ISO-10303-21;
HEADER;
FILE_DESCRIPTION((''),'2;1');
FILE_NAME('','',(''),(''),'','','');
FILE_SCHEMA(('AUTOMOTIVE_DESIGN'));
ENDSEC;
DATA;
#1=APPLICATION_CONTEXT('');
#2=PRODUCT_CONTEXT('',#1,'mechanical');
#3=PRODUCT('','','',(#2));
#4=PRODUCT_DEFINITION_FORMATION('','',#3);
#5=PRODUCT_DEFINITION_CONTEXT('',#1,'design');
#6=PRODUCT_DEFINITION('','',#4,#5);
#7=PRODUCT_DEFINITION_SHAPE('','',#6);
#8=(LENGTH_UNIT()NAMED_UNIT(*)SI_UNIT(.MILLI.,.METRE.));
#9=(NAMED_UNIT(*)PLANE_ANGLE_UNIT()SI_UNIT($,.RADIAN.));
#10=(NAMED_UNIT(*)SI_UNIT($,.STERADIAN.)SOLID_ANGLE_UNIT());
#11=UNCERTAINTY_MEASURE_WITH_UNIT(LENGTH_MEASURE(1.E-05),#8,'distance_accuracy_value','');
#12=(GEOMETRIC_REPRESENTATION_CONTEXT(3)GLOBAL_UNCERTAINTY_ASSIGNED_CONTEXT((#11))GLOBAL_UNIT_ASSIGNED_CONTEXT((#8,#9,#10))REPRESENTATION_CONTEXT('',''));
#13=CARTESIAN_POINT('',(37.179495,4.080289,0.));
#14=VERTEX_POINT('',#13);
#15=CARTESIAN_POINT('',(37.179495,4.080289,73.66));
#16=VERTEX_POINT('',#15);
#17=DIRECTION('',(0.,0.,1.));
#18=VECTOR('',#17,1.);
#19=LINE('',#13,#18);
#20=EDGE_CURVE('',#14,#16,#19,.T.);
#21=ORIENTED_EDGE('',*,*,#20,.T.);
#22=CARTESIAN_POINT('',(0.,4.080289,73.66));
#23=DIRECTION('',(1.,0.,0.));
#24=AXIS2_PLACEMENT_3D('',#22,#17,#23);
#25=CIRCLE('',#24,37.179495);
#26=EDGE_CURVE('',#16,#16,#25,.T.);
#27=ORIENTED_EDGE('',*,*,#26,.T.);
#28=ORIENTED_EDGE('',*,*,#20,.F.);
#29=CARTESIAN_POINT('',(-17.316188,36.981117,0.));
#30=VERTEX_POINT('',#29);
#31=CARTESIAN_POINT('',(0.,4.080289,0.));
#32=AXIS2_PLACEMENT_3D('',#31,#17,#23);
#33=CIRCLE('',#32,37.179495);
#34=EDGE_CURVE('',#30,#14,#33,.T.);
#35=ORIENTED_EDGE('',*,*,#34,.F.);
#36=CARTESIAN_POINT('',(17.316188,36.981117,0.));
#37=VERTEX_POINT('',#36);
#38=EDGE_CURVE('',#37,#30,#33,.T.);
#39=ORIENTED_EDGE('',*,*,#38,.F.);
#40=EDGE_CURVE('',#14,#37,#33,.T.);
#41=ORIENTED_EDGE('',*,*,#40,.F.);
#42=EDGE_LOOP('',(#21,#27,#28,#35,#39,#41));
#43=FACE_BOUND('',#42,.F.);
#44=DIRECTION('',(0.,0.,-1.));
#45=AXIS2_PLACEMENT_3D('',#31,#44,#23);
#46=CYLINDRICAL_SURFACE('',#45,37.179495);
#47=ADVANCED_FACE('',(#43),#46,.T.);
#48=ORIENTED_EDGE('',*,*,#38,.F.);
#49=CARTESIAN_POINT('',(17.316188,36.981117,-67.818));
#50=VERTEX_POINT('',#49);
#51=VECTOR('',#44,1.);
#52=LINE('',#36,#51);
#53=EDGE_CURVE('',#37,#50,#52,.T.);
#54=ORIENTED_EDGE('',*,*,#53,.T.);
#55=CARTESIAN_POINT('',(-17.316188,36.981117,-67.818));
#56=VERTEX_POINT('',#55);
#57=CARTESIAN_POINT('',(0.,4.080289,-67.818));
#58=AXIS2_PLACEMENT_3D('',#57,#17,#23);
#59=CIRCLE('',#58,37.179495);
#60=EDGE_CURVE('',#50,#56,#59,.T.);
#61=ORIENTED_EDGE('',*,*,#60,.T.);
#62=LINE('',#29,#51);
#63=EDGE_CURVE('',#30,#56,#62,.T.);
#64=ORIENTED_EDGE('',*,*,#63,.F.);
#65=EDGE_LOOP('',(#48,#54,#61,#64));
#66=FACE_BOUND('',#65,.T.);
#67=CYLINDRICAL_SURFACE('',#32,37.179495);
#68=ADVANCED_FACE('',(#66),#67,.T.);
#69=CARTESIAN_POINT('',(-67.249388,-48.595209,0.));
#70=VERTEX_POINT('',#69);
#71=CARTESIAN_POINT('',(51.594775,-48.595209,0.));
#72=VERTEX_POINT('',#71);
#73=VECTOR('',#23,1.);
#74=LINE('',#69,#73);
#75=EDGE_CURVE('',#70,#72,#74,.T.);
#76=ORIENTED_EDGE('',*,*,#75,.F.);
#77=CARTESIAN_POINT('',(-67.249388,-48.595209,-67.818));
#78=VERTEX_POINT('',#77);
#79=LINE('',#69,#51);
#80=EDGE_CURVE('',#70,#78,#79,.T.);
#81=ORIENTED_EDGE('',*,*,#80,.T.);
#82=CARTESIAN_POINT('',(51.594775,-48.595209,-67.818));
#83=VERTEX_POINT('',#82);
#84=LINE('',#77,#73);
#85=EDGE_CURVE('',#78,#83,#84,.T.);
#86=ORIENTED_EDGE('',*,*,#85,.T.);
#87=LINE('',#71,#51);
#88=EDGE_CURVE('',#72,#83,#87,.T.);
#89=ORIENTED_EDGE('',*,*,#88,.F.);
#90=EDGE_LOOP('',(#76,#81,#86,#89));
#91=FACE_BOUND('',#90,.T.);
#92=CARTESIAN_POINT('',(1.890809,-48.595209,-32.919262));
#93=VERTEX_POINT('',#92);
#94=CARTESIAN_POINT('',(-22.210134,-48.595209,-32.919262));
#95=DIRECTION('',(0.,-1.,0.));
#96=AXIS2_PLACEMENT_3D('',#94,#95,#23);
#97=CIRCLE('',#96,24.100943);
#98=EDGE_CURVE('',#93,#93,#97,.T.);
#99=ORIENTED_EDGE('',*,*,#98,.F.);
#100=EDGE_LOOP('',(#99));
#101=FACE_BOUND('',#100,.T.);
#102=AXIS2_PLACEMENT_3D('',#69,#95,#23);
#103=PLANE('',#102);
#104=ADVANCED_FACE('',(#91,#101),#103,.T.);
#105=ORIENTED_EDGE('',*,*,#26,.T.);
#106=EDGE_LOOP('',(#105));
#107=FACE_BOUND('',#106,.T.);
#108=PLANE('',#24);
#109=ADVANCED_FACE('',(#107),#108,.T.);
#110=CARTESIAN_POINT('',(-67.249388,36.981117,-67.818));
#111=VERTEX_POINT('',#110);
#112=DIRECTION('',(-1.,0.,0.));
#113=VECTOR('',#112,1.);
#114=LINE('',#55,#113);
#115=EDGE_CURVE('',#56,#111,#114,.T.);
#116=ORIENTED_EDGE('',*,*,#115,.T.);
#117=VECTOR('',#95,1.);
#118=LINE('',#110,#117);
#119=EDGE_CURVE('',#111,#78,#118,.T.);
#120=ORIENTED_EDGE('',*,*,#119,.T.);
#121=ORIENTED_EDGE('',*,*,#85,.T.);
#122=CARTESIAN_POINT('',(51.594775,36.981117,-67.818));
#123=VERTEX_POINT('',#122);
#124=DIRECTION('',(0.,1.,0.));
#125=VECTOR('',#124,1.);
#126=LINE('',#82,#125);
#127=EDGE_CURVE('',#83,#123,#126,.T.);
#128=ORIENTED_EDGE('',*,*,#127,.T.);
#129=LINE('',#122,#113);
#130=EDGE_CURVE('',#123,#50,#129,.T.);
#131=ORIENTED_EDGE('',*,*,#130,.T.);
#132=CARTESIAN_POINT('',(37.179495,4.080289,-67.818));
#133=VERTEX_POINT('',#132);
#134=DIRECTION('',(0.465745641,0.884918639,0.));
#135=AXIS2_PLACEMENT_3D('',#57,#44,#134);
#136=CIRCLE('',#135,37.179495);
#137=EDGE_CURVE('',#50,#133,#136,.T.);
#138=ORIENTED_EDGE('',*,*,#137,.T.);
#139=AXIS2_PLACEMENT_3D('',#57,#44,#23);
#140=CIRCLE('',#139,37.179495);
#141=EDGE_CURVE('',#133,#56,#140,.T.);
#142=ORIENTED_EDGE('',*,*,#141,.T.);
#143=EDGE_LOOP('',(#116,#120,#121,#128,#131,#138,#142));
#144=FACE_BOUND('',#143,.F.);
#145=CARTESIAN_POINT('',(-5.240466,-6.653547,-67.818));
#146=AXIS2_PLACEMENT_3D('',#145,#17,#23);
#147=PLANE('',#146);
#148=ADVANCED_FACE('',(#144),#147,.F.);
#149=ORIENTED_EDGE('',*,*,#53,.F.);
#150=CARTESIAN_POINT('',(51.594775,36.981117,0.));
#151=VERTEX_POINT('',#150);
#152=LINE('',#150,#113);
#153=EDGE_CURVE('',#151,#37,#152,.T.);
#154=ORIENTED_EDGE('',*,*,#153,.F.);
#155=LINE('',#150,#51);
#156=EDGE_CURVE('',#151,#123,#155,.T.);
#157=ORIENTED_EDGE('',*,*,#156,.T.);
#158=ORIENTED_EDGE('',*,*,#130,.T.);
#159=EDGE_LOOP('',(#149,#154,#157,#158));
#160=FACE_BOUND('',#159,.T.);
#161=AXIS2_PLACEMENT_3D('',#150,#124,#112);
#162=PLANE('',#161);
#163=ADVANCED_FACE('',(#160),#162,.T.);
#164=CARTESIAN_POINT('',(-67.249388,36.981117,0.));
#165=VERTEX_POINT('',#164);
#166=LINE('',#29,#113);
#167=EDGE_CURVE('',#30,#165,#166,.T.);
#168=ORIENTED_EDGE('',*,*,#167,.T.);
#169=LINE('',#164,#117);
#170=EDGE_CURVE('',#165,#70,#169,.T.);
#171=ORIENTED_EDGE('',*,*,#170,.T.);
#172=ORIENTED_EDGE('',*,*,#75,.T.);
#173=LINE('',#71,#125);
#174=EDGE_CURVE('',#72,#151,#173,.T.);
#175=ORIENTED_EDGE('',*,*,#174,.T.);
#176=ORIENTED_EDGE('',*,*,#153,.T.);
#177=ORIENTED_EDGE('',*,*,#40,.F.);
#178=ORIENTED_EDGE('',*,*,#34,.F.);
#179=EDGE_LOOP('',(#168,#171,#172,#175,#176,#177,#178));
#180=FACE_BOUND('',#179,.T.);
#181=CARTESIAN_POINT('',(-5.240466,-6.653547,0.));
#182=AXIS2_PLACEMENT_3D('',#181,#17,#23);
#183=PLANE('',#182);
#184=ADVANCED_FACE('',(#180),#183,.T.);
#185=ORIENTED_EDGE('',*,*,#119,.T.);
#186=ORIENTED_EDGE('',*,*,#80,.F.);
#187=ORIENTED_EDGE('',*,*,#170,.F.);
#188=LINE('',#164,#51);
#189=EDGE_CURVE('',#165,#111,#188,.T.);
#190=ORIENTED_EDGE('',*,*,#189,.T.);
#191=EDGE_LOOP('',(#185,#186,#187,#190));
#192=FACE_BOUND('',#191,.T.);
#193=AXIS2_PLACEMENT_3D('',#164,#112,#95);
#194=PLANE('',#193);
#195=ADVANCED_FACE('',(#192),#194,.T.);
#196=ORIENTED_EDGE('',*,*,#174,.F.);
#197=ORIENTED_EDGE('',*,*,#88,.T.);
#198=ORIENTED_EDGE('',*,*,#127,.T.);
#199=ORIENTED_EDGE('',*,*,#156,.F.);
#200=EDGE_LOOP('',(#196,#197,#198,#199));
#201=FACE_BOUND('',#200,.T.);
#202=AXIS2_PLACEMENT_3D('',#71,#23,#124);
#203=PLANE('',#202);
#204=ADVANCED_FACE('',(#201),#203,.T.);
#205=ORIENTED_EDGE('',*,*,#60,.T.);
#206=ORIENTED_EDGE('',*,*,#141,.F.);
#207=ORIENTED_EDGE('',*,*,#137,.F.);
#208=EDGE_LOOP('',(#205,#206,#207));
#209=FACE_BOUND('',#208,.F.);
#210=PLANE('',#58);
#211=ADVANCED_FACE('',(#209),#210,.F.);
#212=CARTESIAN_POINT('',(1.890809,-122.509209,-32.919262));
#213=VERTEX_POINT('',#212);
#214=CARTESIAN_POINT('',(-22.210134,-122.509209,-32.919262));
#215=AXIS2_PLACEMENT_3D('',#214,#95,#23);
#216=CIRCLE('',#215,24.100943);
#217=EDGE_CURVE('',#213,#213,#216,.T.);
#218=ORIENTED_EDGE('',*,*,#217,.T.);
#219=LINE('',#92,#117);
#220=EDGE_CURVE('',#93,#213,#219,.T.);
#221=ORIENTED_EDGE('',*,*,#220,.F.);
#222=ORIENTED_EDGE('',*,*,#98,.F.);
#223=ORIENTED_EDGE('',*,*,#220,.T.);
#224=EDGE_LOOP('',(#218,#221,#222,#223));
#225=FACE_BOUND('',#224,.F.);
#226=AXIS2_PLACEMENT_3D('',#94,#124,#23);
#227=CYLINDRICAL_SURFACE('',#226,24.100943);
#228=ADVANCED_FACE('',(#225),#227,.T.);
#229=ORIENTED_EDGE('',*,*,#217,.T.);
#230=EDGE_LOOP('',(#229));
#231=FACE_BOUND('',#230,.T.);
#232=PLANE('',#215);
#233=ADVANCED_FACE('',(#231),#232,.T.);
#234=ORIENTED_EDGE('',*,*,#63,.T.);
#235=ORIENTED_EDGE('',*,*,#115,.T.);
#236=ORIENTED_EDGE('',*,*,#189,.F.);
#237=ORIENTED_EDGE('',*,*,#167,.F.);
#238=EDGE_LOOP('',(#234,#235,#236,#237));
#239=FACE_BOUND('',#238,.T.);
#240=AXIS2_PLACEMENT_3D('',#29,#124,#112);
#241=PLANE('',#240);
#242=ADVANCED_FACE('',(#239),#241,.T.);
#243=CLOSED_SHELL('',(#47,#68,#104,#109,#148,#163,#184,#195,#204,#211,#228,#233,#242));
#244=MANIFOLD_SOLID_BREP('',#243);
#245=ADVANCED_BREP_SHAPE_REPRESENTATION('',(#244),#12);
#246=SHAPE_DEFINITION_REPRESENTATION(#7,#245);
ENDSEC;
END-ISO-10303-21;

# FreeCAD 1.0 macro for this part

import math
import FreeCAD as App
import Part
import Sketcher

V = App.Vector
Q = App.Units.Quantity

doc = App.newDocument("Part")
body = doc.addObject("PartDesign::Body", "Body")

sketch1 = body.newObject("Sketcher::SketchObject", "Sketch")
sketch1.AttachmentSupport = (doc.getObject("XY_Plane"), [""])
sketch1.MapMode = "FlatFace"
sketch1.addGeometry(Part.Circle(V(0, 4.080289, 0), V(0, 0, 1), 37.179495), False)
sketch1.addConstraint([
    Sketcher.Constraint("PointOnObject", 0, 3, -2),
    Sketcher.Constraint("Diameter", 0, 74.358991),
    Sketcher.Constraint("DistanceY", -1, 1, 0, 3, 4.080289),
])
pad1 = body.newObject("PartDesign::Pad", "Pad")
pad1.Profile = sketch1
pad1.Length = Q("2.9 in")

sketch2 = body.newObject("Sketcher::SketchObject", "Sketch001")
sketch2.AttachmentSupport = (doc.getObject("XY_Plane"), [""])
sketch2.MapMode = "FlatFace"
sketch2.addGeometry([
    Part.LineSegment(V(-17.316188, 36.981117, 0), V(-67.249388, 36.981117, 0)),
    Part.LineSegment(V(-67.249388, 36.981117, 0), V(-67.249388, -48.595209, 0)),
    Part.LineSegment(V(-67.249388, -48.595209, 0), V(51.594775, -48.595209, 0)),
    Part.LineSegment(V(51.594775, -48.595209, 0), V(51.594775, 36.981117, 0)),
    Part.LineSegment(V(51.594775, 36.981117, 0), V(17.316188, 36.981117, 0)),
    Part.ArcOfCircle(Part.Circle(V(0, 4.080289, 0), V(0, 0, 1), 37.179495), math.radians(62.241511), math.radians(117.758489)),
], False)
sketch2.addConstraint([
    Sketcher.Constraint("Coincident", 0, 2, 1, 1),
    Sketcher.Constraint("Coincident", 1, 2, 2, 1),
    Sketcher.Constraint("Coincident", 2, 2, 3, 1),
    Sketcher.Constraint("Coincident", 3, 2, 4, 1),
    Sketcher.Constraint("Coincident", 4, 2, 5, 1),
    Sketcher.Constraint("Coincident", 5, 2, 0, 1),
    Sketcher.Constraint("Horizontal", 0),
    Sketcher.Constraint("Vertical", 1),
    Sketcher.Constraint("Horizontal", 2),
    Sketcher.Constraint("Vertical", 3),
    Sketcher.Constraint("Horizontal", 4),
    Sketcher.Constraint("Symmetric", 4, 2, 5, 2, -2),
    Sketcher.Constraint("DistanceX", 0, 2, 0, 1, 49.9332),
    Sketcher.Constraint("Radius", 5, 37.179495),
    Sketcher.Constraint("DistanceX", 2, 1, 2, 2, 118.844163),
    Sketcher.Constraint("DistanceX", 4, 2, 4, 1, 34.278587),
    Sketcher.Constraint("DistanceY", 1, 2, 1, 1, 85.576326),
    Sketcher.Constraint("DistanceY", -1, 1, 5, 3, 4.080289),
])
pad2 = body.newObject("PartDesign::Pad", "Pad001")
pad2.Profile = sketch2
pad2.Length = Q("2.67 in")
pad2.Reversed = True

sketch3 = body.newObject("Sketcher::SketchObject", "Sketch002")
sketch3.AttachmentSupport = (doc.getObject("XZ_Plane"), [""])
sketch3.MapMode = "FlatFace"
sketch3.AttachmentOffset = App.Placement(V(0, 0, 48.595209), App.Rotation())
sketch3.addGeometry(Part.Circle(V(-22.210134, -32.919262, 0), V(0, 0, 1), 24.100943), False)
sketch3.addConstraint([
    Sketcher.Constraint("Diameter", 0, 48.201886),
    Sketcher.Constraint("DistanceY", 0, 3, -1, 1, 32.919262),
    Sketcher.Constraint("DistanceX", 0, 3, -1, 1, 22.210134),
])
pad3 = body.newObject("PartDesign::Pad", "Pad002")
pad3.Profile = sketch3
pad3.Length = Q("2.91 in")

doc.recompute()
